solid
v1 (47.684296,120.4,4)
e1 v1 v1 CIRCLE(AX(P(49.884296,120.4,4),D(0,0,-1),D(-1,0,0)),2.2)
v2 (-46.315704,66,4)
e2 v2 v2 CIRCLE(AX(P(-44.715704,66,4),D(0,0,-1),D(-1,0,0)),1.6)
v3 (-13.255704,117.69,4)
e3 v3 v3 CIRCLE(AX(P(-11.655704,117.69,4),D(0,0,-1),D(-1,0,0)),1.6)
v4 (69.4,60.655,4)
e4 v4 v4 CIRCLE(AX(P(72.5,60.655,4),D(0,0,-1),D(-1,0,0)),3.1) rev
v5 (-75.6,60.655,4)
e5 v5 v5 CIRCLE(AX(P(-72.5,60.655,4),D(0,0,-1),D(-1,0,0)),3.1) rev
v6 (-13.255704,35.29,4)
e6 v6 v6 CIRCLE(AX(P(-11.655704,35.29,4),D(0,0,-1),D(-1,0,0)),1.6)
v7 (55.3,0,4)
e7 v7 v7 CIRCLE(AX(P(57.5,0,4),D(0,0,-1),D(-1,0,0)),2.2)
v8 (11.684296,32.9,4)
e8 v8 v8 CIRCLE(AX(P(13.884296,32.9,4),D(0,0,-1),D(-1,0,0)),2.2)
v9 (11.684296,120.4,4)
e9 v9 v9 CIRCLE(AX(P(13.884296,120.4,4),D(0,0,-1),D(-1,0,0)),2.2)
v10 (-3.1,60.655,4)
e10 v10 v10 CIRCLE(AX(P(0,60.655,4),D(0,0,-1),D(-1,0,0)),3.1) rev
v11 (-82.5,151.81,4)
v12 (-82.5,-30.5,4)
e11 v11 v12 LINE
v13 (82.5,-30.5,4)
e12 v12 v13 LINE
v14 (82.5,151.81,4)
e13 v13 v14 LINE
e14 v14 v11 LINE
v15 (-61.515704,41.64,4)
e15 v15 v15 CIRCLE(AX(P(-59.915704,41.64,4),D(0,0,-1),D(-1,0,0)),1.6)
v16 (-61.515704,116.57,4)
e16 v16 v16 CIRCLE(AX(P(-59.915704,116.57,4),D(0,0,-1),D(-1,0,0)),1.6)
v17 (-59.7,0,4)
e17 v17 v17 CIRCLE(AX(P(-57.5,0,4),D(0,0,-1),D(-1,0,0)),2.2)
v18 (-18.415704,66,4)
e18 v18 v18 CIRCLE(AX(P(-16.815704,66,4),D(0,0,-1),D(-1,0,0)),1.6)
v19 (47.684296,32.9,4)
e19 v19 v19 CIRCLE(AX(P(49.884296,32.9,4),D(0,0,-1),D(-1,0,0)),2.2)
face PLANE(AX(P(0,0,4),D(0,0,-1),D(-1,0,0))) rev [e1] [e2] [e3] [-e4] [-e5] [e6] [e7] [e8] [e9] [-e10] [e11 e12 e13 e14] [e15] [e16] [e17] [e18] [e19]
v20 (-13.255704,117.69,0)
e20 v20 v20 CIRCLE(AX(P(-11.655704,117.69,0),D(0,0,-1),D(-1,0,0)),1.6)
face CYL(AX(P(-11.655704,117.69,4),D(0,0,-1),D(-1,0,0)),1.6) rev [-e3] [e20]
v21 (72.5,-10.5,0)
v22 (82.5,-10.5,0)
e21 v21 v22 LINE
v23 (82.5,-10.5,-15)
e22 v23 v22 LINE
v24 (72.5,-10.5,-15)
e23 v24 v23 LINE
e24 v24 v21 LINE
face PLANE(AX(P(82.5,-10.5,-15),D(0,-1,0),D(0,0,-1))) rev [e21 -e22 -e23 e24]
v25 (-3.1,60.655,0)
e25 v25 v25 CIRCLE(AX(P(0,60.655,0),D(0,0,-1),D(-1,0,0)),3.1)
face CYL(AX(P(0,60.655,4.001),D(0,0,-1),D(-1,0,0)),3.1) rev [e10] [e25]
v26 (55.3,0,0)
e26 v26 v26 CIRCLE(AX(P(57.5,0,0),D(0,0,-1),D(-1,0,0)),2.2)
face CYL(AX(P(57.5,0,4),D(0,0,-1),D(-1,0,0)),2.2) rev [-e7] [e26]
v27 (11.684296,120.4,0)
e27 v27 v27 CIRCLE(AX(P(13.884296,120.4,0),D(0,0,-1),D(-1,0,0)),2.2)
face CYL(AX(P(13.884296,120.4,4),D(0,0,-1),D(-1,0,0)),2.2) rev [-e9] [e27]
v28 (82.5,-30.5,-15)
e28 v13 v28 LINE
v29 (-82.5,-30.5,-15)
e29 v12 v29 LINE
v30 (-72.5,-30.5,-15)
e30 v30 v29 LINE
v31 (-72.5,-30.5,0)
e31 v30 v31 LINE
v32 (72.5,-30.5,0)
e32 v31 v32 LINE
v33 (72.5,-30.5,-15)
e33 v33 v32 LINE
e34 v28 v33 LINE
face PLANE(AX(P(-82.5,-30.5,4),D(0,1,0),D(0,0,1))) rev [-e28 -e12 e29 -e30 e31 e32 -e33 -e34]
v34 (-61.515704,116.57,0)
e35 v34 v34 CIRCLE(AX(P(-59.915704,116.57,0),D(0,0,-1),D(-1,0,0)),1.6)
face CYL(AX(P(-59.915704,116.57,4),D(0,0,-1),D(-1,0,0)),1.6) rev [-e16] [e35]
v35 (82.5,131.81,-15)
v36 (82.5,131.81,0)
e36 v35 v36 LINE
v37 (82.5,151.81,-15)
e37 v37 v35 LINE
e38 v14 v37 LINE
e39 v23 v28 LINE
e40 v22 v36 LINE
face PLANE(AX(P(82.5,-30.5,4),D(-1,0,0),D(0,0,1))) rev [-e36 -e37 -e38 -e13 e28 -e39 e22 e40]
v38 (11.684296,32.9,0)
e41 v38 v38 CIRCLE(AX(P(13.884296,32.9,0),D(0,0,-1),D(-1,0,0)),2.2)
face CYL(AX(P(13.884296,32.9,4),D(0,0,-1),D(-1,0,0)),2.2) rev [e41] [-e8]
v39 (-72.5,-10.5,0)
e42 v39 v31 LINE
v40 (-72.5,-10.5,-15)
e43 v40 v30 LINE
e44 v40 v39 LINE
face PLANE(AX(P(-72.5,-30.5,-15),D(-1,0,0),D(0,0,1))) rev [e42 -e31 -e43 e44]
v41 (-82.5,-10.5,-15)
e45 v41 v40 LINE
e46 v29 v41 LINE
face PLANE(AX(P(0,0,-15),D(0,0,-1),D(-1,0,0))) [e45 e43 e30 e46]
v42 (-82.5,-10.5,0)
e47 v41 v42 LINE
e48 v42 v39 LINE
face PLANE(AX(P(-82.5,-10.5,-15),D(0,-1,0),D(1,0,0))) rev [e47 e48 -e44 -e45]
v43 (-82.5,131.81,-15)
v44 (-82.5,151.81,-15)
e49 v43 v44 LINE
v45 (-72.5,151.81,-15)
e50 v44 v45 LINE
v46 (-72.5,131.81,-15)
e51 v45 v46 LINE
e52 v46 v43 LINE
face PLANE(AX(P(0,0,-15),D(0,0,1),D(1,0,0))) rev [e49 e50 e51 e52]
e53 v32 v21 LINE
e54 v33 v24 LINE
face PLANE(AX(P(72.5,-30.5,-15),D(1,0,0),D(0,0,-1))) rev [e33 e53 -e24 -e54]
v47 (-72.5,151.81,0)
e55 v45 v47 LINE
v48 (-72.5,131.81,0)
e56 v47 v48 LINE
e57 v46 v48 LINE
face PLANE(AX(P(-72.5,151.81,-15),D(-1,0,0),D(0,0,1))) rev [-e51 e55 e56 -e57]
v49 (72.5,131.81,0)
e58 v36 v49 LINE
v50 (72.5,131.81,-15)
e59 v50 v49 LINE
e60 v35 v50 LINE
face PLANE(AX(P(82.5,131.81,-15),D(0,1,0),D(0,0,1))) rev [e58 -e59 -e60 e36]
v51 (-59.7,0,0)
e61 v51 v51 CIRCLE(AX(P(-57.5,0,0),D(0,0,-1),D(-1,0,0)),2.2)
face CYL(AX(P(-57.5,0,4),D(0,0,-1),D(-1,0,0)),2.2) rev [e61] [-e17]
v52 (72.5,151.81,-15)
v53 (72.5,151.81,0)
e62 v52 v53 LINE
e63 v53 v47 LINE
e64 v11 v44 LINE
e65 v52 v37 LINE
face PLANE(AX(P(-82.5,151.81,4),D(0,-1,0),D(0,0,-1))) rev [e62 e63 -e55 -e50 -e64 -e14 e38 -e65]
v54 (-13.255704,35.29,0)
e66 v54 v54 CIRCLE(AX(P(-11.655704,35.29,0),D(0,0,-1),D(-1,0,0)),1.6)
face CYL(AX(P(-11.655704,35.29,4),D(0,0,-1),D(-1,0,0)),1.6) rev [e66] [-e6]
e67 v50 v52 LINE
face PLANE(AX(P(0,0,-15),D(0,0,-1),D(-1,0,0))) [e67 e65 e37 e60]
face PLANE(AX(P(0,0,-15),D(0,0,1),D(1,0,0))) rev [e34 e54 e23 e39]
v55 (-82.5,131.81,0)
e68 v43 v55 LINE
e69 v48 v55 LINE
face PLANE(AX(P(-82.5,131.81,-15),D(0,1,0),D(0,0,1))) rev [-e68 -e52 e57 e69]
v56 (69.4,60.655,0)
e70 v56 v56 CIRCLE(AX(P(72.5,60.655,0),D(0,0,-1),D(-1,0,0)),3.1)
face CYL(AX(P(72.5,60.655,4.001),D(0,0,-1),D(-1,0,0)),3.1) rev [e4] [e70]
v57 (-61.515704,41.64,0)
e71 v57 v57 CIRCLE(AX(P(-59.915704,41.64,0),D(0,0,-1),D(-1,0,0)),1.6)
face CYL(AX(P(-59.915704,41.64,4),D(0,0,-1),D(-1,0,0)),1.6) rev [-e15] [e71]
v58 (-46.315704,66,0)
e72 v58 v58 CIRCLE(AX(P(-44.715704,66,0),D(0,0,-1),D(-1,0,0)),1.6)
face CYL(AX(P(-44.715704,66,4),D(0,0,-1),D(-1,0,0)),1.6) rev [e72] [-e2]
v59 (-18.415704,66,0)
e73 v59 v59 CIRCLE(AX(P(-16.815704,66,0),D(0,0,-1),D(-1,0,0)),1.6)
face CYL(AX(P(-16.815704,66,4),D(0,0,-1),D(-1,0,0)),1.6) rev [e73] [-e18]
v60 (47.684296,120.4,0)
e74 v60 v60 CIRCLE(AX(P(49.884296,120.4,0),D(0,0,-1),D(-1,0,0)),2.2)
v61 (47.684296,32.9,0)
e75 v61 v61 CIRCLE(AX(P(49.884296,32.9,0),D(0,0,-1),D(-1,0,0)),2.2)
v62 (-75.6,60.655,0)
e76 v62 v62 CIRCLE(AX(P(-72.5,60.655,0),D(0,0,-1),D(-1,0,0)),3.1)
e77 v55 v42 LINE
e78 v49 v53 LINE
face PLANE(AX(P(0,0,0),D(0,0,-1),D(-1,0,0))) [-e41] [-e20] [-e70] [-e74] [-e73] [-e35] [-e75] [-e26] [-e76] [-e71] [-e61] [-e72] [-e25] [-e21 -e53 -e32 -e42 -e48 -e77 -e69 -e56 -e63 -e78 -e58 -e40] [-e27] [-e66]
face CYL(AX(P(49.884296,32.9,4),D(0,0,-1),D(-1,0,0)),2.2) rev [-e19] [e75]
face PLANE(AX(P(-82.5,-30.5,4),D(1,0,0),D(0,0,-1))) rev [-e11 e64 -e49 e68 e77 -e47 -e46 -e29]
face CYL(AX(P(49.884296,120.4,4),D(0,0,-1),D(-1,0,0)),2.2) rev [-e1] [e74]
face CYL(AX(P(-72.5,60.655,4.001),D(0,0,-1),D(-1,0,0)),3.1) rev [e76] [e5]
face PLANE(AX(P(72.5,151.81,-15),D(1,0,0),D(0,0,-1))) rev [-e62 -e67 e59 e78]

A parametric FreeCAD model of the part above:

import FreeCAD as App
import Part
import Sketcher
from FreeCAD import Vector
Q = App.Units.Quantity


def add_polygon(sketch, points):
    """Adds a closed chain of lines whose ends are joined by coincident constraints."""
    first, n = sketch.GeometryCount, len(points)
    for a, b in zip(points, points[1:] + points[:1]):
        sketch.addGeometry(Part.LineSegment(App.Vector(*a, 0), App.Vector(*b, 0)), False)
    for i in range(n):
        sketch.addConstraint(Sketcher.Constraint("Coincident", first + i, 2, first + (i + 1) % n, 1))

doc = App.newDocument("Part")
body = doc.addObject("PartDesign::Body", "Body")

# Sketch on XY plane
sketch1 = body.newObject("Sketcher::SketchObject", "Sketch")
sketch1.AttachmentSupport = (doc.getObject("XY_Plane"), [""])
sketch1.MapMode = "FlatFace"
add_polygon(sketch1, [(-82.5, 151.81), (-82.5, -30.5), (82.5, -30.5), (82.5, 151.81)])  # lines 0-3
sketch1.addConstraint([
    Sketcher.Constraint("Vertical", 0),
    Sketcher.Constraint("Horizontal", 1),
    Sketcher.Constraint("Vertical", 2),
    Sketcher.Constraint("Horizontal", 3),
    Sketcher.Constraint("DistanceX", 1, 1, 1, 2, Q("165 mm")),
    Sketcher.Constraint("DistanceY", 0, 2, 0, 1, Q("182.31 mm")),
    Sketcher.Constraint("DistanceX", 0, 2, -1, 1, Q("82.5 mm")),
    Sketcher.Constraint("DistanceY", 0, 2, -1, 1, Q("30.5 mm")),
])
pad1 = body.newObject("PartDesign::Pad", "Pad")
pad1.Profile = sketch1
pad1.Length = 4

# Sketch on XY plane
sketch2 = body.newObject("Sketcher::SketchObject", "Sketch001")
sketch2.AttachmentSupport = (doc.getObject("XY_Plane"), [""])
sketch2.MapMode = "FlatFace"
sketch2.addGeometry([
    Part.Circle(Vector(49.884296, 120.4, 0), Vector(0, 0, 1), 2.2),  # 0
    Part.Circle(Vector(49.884296, 32.9, 0), Vector(0, 0, 1), 2.2),  # 1
    Part.Circle(Vector(13.884296, 32.9, 0), Vector(0, 0, 1), 2.2),  # 2
    Part.Circle(Vector(13.884296, 120.4, 0), Vector(0, 0, 1), 2.2),  # 3
    Part.Circle(Vector(-57.5, 0, 0), Vector(0, 0, 1), 2.2),  # 4
    Part.Circle(Vector(57.5, 0, 0), Vector(0, 0, 1), 2.2),  # 5
    Part.Circle(Vector(-11.655704, 35.29, 0), Vector(0, 0, 1), 1.6),  # 6
    Part.Circle(Vector(-16.815704, 66, 0), Vector(0, 0, 1), 1.6),  # 7
    Part.Circle(Vector(-11.655704, 117.69, 0), Vector(0, 0, 1), 1.6),  # 8
    Part.Circle(Vector(-59.915704, 116.57, 0), Vector(0, 0, 1), 1.6),  # 9
    Part.Circle(Vector(-44.715704, 66, 0), Vector(0, 0, 1), 1.6),  # 10
    Part.Circle(Vector(-59.915704, 41.64, 0), Vector(0, 0, 1), 1.6),  # 11
], False)
sketch2.addConstraint([
    Sketcher.Constraint("Equal", 0, 1),
    Sketcher.Constraint("Equal", 1, 2),
    Sketcher.Constraint("Equal", 2, 3),
    Sketcher.Constraint("Equal", 3, 4),
    Sketcher.Constraint("Equal", 4, 5),
    Sketcher.Constraint("Equal", 6, 7),
    Sketcher.Constraint("Equal", 7, 8),
    Sketcher.Constraint("Equal", 8, 9),
    Sketcher.Constraint("Equal", 9, 10),
    Sketcher.Constraint("Equal", 10, 11),
    Sketcher.Constraint("Symmetric", 4, 3, 5, 3, -1, 1),
    Sketcher.Constraint("PointOnObject", 4, 3, -1),
    Sketcher.Constraint("Horizontal", 1, 3, 2, 3),
    Sketcher.Constraint("Horizontal", 0, 3, 3, 3),
    Sketcher.Constraint("Horizontal", 7, 3, 10, 3),
    Sketcher.Constraint("Vertical", 0, 3, 1, 3),
    Sketcher.Constraint("Vertical", 2, 3, 3, 3),
    Sketcher.Constraint("Vertical", 6, 3, 8, 3),
    Sketcher.Constraint("Vertical", 9, 3, 11, 3),
    Sketcher.Constraint("Diameter", 0, Q("4.4 mm")),
    Sketcher.Constraint("Diameter", 6, Q("3.2 mm")),
    Sketcher.Constraint("DistanceY", -1, 1, 7, 3, Q("66 mm")),
    Sketcher.Constraint("DistanceX", 2, 3, 1, 3, Q("36 mm")),
    Sketcher.Constraint("DistanceX", 4, 3, 5, 3, Q("115 mm")),
    Sketcher.Constraint("DistanceY", -1, 1, 0, 3, Q("120.4 mm")),
    Sketcher.Constraint("DistanceY", -1, 1, 1, 3, Q("32.9 mm")),
    Sketcher.Constraint("DistanceX", 7, 3, 2, 3, Q("30.7 mm")),
    Sketcher.Constraint("DistanceY", 6, 3, 8, 3, Q("82.4 mm")),
    Sketcher.Constraint("DistanceX", 9, 3, 7, 3, Q("43.1 mm")),
    Sketcher.Constraint("DistanceX", 10, 3, 7, 3, Q("27.9 mm")),
    Sketcher.Constraint("DistanceY", -1, 1, 6, 3, Q("35.29 mm")),
    Sketcher.Constraint("DistanceY", -1, 1, 9, 3, Q("116.57 mm")),
    Sketcher.Constraint("DistanceY", -1, 1, 11, 3, Q("41.64 mm")),
    Sketcher.Constraint("DistanceX", 6, 3, 2, 3, Q("25.54 mm")),
    Sketcher.Constraint("DistanceX", -1, 1, 0, 3, Q("49.884296 mm")),
])
pocket1 = body.newObject("PartDesign::Pocket", "Pocket")
pocket1.Profile = sketch2
pocket1.Length = 4
pocket1.Reversed = True

# Sketch on XY plane
sketch3 = body.newObject("Sketcher::SketchObject", "Sketch002")
sketch3.AttachmentSupport = (doc.getObject("XY_Plane"), [""])
sketch3.MapMode = "FlatFace"
add_polygon(sketch3, [(82.5, -10.5), (82.5, -30.5), (72.5, -30.5), (72.5, -10.5)])  # lines 0-3
add_polygon(sketch3, [(82.5, 151.81), (82.5, 131.81), (72.5, 131.81), (72.5, 151.81)])  # lines 4-7
add_polygon(sketch3, [(-72.5, -10.5), (-72.5, -30.5), (-82.5, -30.5), (-82.5, -10.5)])  # lines 8-11
add_polygon(sketch3, [(-72.5, 151.81), (-72.5, 131.81), (-82.5, 131.81), (-82.5, 151.81)])  # lines 12-15
sketch3.addConstraint([
    Sketcher.Constraint("Vertical", 0),
    Sketcher.Constraint("Horizontal", 1),
    Sketcher.Constraint("Vertical", 2),
    Sketcher.Constraint("Horizontal", 3),
    Sketcher.Constraint("Vertical", 4),
    Sketcher.Constraint("Horizontal", 5),
    Sketcher.Constraint("Vertical", 6),
    Sketcher.Constraint("Horizontal", 7),
    Sketcher.Constraint("Vertical", 8),
    Sketcher.Constraint("Horizontal", 9),
    Sketcher.Constraint("Vertical", 10),
    Sketcher.Constraint("Horizontal", 11),
    Sketcher.Constraint("Vertical", 12),
    Sketcher.Constraint("Horizontal", 13),
    Sketcher.Constraint("Vertical", 14),
    Sketcher.Constraint("Horizontal", 15),
    Sketcher.Constraint("Symmetric", 1, 2, 8, 2, -2),
    Sketcher.Constraint("Symmetric", 3, 2, 10, 2, -2),
    Sketcher.Constraint("Symmetric", 5, 2, 12, 2, -2),
    Sketcher.Constraint("Symmetric", 7, 2, 14, 2, -2),
    Sketcher.Constraint("Vertical", 3, 2, 4, 2),
    Sketcher.Constraint("Vertical", 2, 2, 5, 2),
    Sketcher.Constraint("Equal", 2, 4),
    Sketcher.Constraint("DistanceX", 1, 2, 1, 1, Q("10 mm")),
    Sketcher.Constraint("DistanceY", 0, 2, 0, 1, Q("20 mm")),
    Sketcher.Constraint("DistanceX", 8, 2, 1, 2, Q("145 mm")),
    Sketcher.Constraint("DistanceY", 0, 2, -1, 1, Q("30.5 mm")),
    Sketcher.Constraint("DistanceY", -1, 1, 4, 2, Q("131.81 mm")),
])
pad2 = body.newObject("PartDesign::Pad", "Pad001")
pad2.Profile = sketch3
pad2.Length = 15
pad2.Reversed = True

# Sketch on XY plane
sketch4 = body.newObject("Sketcher::SketchObject", "Sketch003")
sketch4.AttachmentSupport = (doc.getObject("XY_Plane"), [""])
sketch4.MapMode = "FlatFace"
sketch4.addGeometry(Part.Circle(Vector(72.5, 60.655, 0), Vector(0, 0, 1), 3.1), False)
sketch4.addConstraint([
    Sketcher.Constraint("Diameter", 0, Q("6.2 mm")),
    Sketcher.Constraint("DistanceX", -1, 1, 0, 3, Q("72.5 mm")),
    Sketcher.Constraint("DistanceY", -1, 1, 0, 3, Q("60.655 mm")),
])
pocket2 = body.newObject("PartDesign::Pocket", "Pocket001")
pocket2.Profile = sketch4
pocket2.Type = "UpToFirst"
pocket2.Reversed = True

# Sketch on XY plane
sketch5 = body.newObject("Sketcher::SketchObject", "Sketch004")
sketch5.AttachmentSupport = (doc.getObject("XY_Plane"), [""])
sketch5.MapMode = "FlatFace"
sketch5.addGeometry(Part.Circle(Vector(-72.5, 60.655, 0), Vector(0, 0, 1), 3.1), False)
sketch5.addConstraint([
    Sketcher.Constraint("Diameter", 0, Q("6.2 mm")),
    Sketcher.Constraint("DistanceX", 0, 3, -1, 1, Q("72.5 mm")),
    Sketcher.Constraint("DistanceY", -1, 1, 0, 3, Q("60.655 mm")),
])
pocket3 = body.newObject("PartDesign::Pocket", "Pocket002")
pocket3.Profile = sketch5
pocket3.Type = "UpToFirst"
pocket3.Reversed = True

# Sketch on XY plane
sketch6 = body.newObject("Sketcher::SketchObject", "Sketch005")
sketch6.AttachmentSupport = (doc.getObject("XY_Plane"), [""])
sketch6.MapMode = "FlatFace"
sketch6.addGeometry(Part.Circle(Vector(0, 60.655, 0), Vector(0, 0, 1), 3.1), False)
sketch6.addConstraint([
    Sketcher.Constraint("PointOnObject", 0, 3, -2),
    Sketcher.Constraint("Diameter", 0, Q("6.2 mm")),
    Sketcher.Constraint("DistanceY", -1, 1, 0, 3, Q("60.655 mm")),
])
pocket4 = body.newObject("PartDesign::Pocket", "Pocket003")
pocket4.Profile = sketch6
pocket4.Type = "UpToFirst"
pocket4.Reversed = True

doc.recompute()
